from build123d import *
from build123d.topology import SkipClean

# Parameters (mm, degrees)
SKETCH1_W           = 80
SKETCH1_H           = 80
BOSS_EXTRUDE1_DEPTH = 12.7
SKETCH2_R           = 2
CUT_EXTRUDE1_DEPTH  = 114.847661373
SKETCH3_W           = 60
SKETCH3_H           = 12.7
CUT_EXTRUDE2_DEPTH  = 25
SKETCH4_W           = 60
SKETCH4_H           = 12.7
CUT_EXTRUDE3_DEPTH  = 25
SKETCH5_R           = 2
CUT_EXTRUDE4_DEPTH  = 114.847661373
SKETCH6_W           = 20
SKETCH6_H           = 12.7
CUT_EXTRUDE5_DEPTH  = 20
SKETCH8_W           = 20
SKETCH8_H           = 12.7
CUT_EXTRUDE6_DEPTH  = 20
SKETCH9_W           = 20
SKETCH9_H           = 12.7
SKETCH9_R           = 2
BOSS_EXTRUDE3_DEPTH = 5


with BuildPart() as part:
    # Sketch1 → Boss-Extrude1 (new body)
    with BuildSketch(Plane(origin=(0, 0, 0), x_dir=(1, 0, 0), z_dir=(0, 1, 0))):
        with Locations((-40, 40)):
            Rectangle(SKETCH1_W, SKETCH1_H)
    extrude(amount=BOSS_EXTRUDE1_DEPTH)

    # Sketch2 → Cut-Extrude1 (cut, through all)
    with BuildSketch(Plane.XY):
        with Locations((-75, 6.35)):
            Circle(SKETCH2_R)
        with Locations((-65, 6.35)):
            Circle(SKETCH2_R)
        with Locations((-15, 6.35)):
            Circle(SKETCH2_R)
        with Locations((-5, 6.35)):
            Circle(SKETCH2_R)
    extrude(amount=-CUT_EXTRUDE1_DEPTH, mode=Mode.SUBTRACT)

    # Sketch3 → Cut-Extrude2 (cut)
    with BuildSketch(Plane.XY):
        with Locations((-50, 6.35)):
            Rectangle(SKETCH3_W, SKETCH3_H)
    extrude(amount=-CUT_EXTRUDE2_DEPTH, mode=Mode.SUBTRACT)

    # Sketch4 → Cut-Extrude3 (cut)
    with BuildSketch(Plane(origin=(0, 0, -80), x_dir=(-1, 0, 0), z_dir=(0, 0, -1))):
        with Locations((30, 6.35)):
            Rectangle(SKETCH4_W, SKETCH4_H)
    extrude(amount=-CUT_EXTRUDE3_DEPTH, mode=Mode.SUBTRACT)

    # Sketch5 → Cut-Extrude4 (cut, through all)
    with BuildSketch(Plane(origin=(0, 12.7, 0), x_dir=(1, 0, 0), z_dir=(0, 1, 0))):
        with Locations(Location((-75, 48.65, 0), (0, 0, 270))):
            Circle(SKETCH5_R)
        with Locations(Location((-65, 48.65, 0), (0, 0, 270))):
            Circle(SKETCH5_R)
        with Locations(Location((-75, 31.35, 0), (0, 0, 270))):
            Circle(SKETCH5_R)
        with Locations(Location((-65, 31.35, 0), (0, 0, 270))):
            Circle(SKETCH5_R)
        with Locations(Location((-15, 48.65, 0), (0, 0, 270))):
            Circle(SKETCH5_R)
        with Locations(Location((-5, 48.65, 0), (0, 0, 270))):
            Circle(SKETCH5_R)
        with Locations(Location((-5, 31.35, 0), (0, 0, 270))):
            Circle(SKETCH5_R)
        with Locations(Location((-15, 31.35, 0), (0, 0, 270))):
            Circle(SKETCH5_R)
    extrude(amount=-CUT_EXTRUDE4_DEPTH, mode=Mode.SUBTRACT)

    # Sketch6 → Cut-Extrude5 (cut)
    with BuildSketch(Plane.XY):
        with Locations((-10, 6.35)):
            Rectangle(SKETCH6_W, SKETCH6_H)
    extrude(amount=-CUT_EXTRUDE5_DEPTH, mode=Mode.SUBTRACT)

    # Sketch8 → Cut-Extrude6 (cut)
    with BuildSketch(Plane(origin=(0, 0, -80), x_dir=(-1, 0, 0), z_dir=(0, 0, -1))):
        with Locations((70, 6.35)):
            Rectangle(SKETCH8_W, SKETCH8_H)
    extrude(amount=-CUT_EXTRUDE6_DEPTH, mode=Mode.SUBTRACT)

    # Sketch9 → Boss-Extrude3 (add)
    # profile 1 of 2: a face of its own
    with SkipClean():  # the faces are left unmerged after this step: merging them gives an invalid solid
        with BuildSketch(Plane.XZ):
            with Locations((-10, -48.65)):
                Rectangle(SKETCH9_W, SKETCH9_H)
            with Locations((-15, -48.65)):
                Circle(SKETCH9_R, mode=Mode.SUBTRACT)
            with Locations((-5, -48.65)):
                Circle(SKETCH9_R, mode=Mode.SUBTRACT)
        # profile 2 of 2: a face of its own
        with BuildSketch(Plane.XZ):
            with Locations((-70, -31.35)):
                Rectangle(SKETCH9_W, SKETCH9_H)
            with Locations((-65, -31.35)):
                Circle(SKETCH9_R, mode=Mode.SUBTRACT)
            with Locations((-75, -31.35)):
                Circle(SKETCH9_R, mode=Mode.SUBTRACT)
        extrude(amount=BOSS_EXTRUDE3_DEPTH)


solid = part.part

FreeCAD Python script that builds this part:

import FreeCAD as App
import Part
import Sketcher
from FreeCAD import Vector


def add_polygon(sketch, points):
    """Adds a closed chain of lines whose ends are joined by coincident constraints."""
    first, n = sketch.GeometryCount, len(points)
    for a, b in zip(points, points[1:] + points[:1]):
        sketch.addGeometry(Part.LineSegment(App.Vector(*a, 0), App.Vector(*b, 0)), False)
    for i in range(n):
        sketch.addConstraint(Sketcher.Constraint("Coincident", first + i, 2, first + (i + 1) % n, 1))

doc = App.newDocument("Part")
params = doc.addObject("Spreadsheet::Sheet", "Params")
for row, (alias, value) in enumerate([
    ("sketch1_width", "80 mm"),
    ("pad1_length", "12.7 mm"),
    ("sketch2_diameter", "4 mm"),
    ("sketch3_width", "60 mm"),
    ("sketch3_height", "12.7 mm"),
    ("pocket2_length", "25 mm"),
    ("sketch4_width", "60 mm"),
    ("sketch4_height", "12.7 mm"),
    ("pocket3_length", "25 mm"),
    ("sketch5_diameter", "4 mm"),
    ("sketch6_width", "20 mm"),
    ("sketch6_height", "12.7 mm"),
    ("pocket5_length", "20 mm"),
    ("sketch7_width", "20 mm"),
    ("sketch7_height", "12.7 mm"),
    ("pocket6_length", "20 mm"),
    ("sketch8_diameter", "4 mm"),
    ("sketch8_width", "20 mm"),
    ("sketch8_height", "12.7 mm"),
    ("pad2_length", "5 mm"),
], start=1):
    params.set(f"A{row}", alias)
    params.set(f"B{row}", "=" + value)
    params.setAlias(f"B{row}", alias)

body = doc.addObject("PartDesign::Body", "Body")

# Sketch on XZ plane
sketch1 = body.newObject("Sketcher::SketchObject", "Sketch")
sketch1.AttachmentSupport = (doc.getObject("XZ_Plane"), [""])
sketch1.MapMode = "FlatFace"
add_polygon(sketch1, [(-80, -80), (-80, 0), (0, 0), (0, -80)])  # lines 0-3
sketch1.addConstraint([
    Sketcher.Constraint("Vertical", 0),
    Sketcher.Constraint("Horizontal", 1),
    Sketcher.Constraint("Vertical", 2),
    Sketcher.Constraint("Horizontal", 3),
    Sketcher.Constraint("Coincident", 1, 2, -1, 1),
    Sketcher.Constraint("Equal", 3, 0),
    Sketcher.Constraint("DistanceX", 1, 1, 1, 2, 80.0),
])
sketch1.setExpression("Constraints[10]", "Params.sketch1_width")
pad1 = body.newObject("PartDesign::Pad", "Pad")
pad1.Profile = sketch1
pad1.setExpression("Length", "Params.pad1_length")
pad1.Reversed = True

# Sketch on XY plane
sketch2 = body.newObject("Sketcher::SketchObject", "Sketch001")
sketch2.AttachmentSupport = (doc.getObject("XY_Plane"), [""])
sketch2.MapMode = "FlatFace"
sketch2.addGeometry([
    Part.Circle(Vector(-75, 6.3, 0), Vector(0, 0, 1), 2),
    Part.Circle(Vector(-65, 6.3, 0), Vector(0, 0, 1), 2),
    Part.Circle(Vector(-15, 6.3, 0), Vector(0, 0, 1), 2),
    Part.Circle(Vector(-5, 6.3, 0), Vector(0, 0, 1), 2),
], False)
sketch2.addConstraint([
    Sketcher.Constraint("Equal", 0, 1),
    Sketcher.Constraint("Equal", 1, 2),
    Sketcher.Constraint("Equal", 2, 3),
    Sketcher.Constraint("Horizontal", 0, 3, 1, 3),
    Sketcher.Constraint("Horizontal", 1, 3, 2, 3),
    Sketcher.Constraint("Horizontal", 2, 3, 3, 3),
    Sketcher.Constraint("Diameter", 0, 4.0),
    Sketcher.Constraint("DistanceX", 0, 3, -1, 1, 75.0),
    Sketcher.Constraint("DistanceX", 1, 3, -1, 1, 65.0),
    Sketcher.Constraint("DistanceX", 2, 3, -1, 1, 15.0),
    Sketcher.Constraint("DistanceX", 3, 3, -1, 1, 5.0),
    Sketcher.Constraint("DistanceY", -1, 1, 0, 3, 6.35),
])
sketch2.setExpression("Constraints[6]", "Params.sketch2_diameter")
pocket1 = body.newObject("PartDesign::Pocket", "Pocket")
pocket1.Profile = sketch2
pocket1.Type = "ThroughAll"

# Sketch on XY plane
sketch3 = body.newObject("Sketcher::SketchObject", "Sketch002")
sketch3.AttachmentSupport = (doc.getObject("XY_Plane"), [""])
sketch3.MapMode = "FlatFace"
add_polygon(sketch3, [(-80, 13), (-80, 0), (-20, 0), (-20, 13)])  # lines 0-3
sketch3.addConstraint([
    Sketcher.Constraint("Vertical", 0),
    Sketcher.Constraint("Horizontal", 1),
    Sketcher.Constraint("Vertical", 2),
    Sketcher.Constraint("Horizontal", 3),
    Sketcher.Constraint("PointOnObject", 0, 2, -1),
    Sketcher.Constraint("DistanceX", 1, 1, 1, 2, 60.0),
    Sketcher.Constraint("DistanceY", 0, 2, 0, 1, 12.7),
    Sketcher.Constraint("DistanceX", 0, 2, -1, 1, 80.0),
])
sketch3.setExpression("Constraints[9]", "Params.sketch3_width")
sketch3.setExpression("Constraints[10]", "Params.sketch3_height")
pocket2 = body.newObject("PartDesign::Pocket", "Pocket001")
pocket2.Profile = sketch3
pocket2.setExpression("Length", "Params.pocket2_length")

# Sketch on XY plane
sketch4 = body.newObject("Sketcher::SketchObject", "Sketch003")
sketch4.AttachmentSupport = (doc.getObject("XY_Plane"), [""])
sketch4.MapMode = "FlatFace"
sketch4.AttachmentOffset = App.Placement(Vector(0, 0, -80), App.Rotation())
add_polygon(sketch4, [(0, 13), (0, 0), (-60, 0), (-60, 13)])  # lines 0-3
sketch4.addConstraint([
    Sketcher.Constraint("Vertical", 0),
    Sketcher.Constraint("Horizontal", 1),
    Sketcher.Constraint("Vertical", 2),
    Sketcher.Constraint("Horizontal", 3),
    Sketcher.Constraint("Coincident", 0, 2, -1, 1),
    Sketcher.Constraint("DistanceX", 1, 2, 1, 1, 60.0),
    Sketcher.Constraint("DistanceY", 0, 2, 0, 1, 12.7),
])
sketch4.setExpression("Constraints[9]", "Params.sketch4_width")
sketch4.setExpression("Constraints[10]", "Params.sketch4_height")
pocket3 = body.newObject("PartDesign::Pocket", "Pocket002")
pocket3.Profile = sketch4
pocket3.setExpression("Length", "Params.pocket3_length")
pocket3.Reversed = True

# Sketch on XZ plane
sketch5 = body.newObject("Sketcher::SketchObject", "Sketch004")
sketch5.AttachmentSupport = (doc.getObject("XZ_Plane"), [""])
sketch5.MapMode = "FlatFace"
sketch5.AttachmentOffset = App.Placement(Vector(0, 0, -12.7), App.Rotation())
sketch5.addGeometry([
    Part.Circle(Vector(-75, -48.6, 0), Vector(0, 0, 1), 2),  # 0
    Part.Circle(Vector(-65, -48.6, 0), Vector(0, 0, 1), 2),  # 1
    Part.Circle(Vector(-75, -31.4, 0), Vector(0, 0, 1), 2),  # 2
    Part.Circle(Vector(-65, -31.4, 0), Vector(0, 0, 1), 2),  # 3
    Part.Circle(Vector(-15, -48.6, 0), Vector(0, 0, 1), 2),  # 4
    Part.Circle(Vector(-5, -48.6, 0), Vector(0, 0, 1), 2),  # 5
    Part.Circle(Vector(-5, -31.4, 0), Vector(0, 0, 1), 2),  # 6
    Part.Circle(Vector(-15, -31.4, 0), Vector(0, 0, 1), 2),  # 7
], False)
sketch5.addConstraint([
    Sketcher.Constraint("Equal", 0, 1),
    Sketcher.Constraint("Equal", 1, 2),
    Sketcher.Constraint("Equal", 2, 3),
    Sketcher.Constraint("Equal", 3, 4),
    Sketcher.Constraint("Equal", 4, 5),
    Sketcher.Constraint("Equal", 5, 6),
    Sketcher.Constraint("Equal", 6, 7),
    Sketcher.Constraint("Horizontal", 0, 3, 1, 3),
    Sketcher.Constraint("Horizontal", 2, 3, 3, 3),
    Sketcher.Constraint("Horizontal", 1, 3, 4, 3),
    Sketcher.Constraint("Horizontal", 4, 3, 5, 3),
    Sketcher.Constraint("Horizontal", 3, 3, 6, 3),
    Sketcher.Constraint("Horizontal", 6, 3, 7, 3),
    Sketcher.Constraint("Vertical", 0, 3, 2, 3),
    Sketcher.Constraint("Vertical", 1, 3, 3, 3),
    Sketcher.Constraint("Vertical", 5, 3, 6, 3),
    Sketcher.Constraint("Vertical", 4, 3, 7, 3),
    Sketcher.Constraint("Diameter", 0, 4.0),
    Sketcher.Constraint("DistanceX", 0, 3, -1, 1, 75.0),
    Sketcher.Constraint("DistanceX", 1, 3, -1, 1, 65.0),
    Sketcher.Constraint("DistanceX", 4, 3, -1, 1, 15.0),
    Sketcher.Constraint("DistanceX", 5, 3, -1, 1, 5.0),
    Sketcher.Constraint("DistanceY", 0, 3, 2, 3, 17.3),
    Sketcher.Constraint("DistanceY", 0, 3, -1, 1, 48.65),
])
sketch5.setExpression("Constraints[17]", "Params.sketch5_diameter")
pocket4 = body.newObject("PartDesign::Pocket", "Pocket003")
pocket4.Profile = sketch5
pocket4.Type = "ThroughAll"
pocket4.Reversed = True

# Sketch on XY plane
sketch6 = body.newObject("Sketcher::SketchObject", "Sketch005")
sketch6.AttachmentSupport = (doc.getObject("XY_Plane"), [""])
sketch6.MapMode = "FlatFace"
add_polygon(sketch6, [(-20, 13), (-20, 0), (0, 0), (0, 13)])  # lines 0-3
sketch6.addConstraint([
    Sketcher.Constraint("Vertical", 0),
    Sketcher.Constraint("Horizontal", 1),
    Sketcher.Constraint("Vertical", 2),
    Sketcher.Constraint("Horizontal", 3),
    Sketcher.Constraint("Coincident", 1, 2, -1, 1),
    Sketcher.Constraint("DistanceX", 1, 1, 1, 2, 20.0),
    Sketcher.Constraint("DistanceY", 0, 2, 0, 1, 12.7),
])
sketch6.setExpression("Constraints[9]", "Params.sketch6_width")
sketch6.setExpression("Constraints[10]", "Params.sketch6_height")
pocket5 = body.newObject("PartDesign::Pocket", "Pocket004")
pocket5.Profile = sketch6
pocket5.setExpression("Length", "Params.pocket5_length")

# Sketch on XY plane
sketch7 = body.newObject("Sketcher::SketchObject", "Sketch006")
sketch7.AttachmentSupport = (doc.getObject("XY_Plane"), [""])
sketch7.MapMode = "FlatFace"
sketch7.AttachmentOffset = App.Placement(Vector(0, 0, -80), App.Rotation())
add_polygon(sketch7, [(-60, 13), (-60, 0), (-80, 0), (-80, 13)])  # lines 0-3
sketch7.addConstraint([
    Sketcher.Constraint("Vertical", 0),
    Sketcher.Constraint("Horizontal", 1),
    Sketcher.Constraint("Vertical", 2),
    Sketcher.Constraint("Horizontal", 3),
    Sketcher.Constraint("PointOnObject", 0, 2, -1),
    Sketcher.Constraint("DistanceX", 1, 2, 1, 1, 20.0),
    Sketcher.Constraint("DistanceY", 0, 2, 0, 1, 12.7),
    Sketcher.Constraint("DistanceX", 0, 2, -1, 1, 60.0),
])
sketch7.setExpression("Constraints[9]", "Params.sketch7_width")
sketch7.setExpression("Constraints[10]", "Params.sketch7_height")
pocket6 = body.newObject("PartDesign::Pocket", "Pocket005")
pocket6.Profile = sketch7
pocket6.setExpression("Length", "Params.pocket6_length")
pocket6.Reversed = True

# Sketch on XZ plane
sketch8 = body.newObject("Sketcher::SketchObject", "Sketch007")
sketch8.AttachmentSupport = (doc.getObject("XZ_Plane"), [""])
sketch8.MapMode = "FlatFace"
add_polygon(sketch8, [(-20, -42.3), (-20, -55), (0, -55), (0, -42.3)])  # lines 0-3
sketch8.addGeometry(Part.Circle(Vector(-15, -48.6, 0), Vector(0, 0, 1), 2), False)  # 4
sketch8.addGeometry(Part.Circle(Vector(-5, -48.6, 0), Vector(0, 0, 1), 2), False)  # 5
add_polygon(sketch8, [(-80, -25), (-80, -37.7), (-60, -37.7), (-60, -25)])  # lines 6-9
sketch8.addGeometry(Part.Circle(Vector(-75, -31.4, 0), Vector(0, 0, 1), 2), False)  # 10
sketch8.addGeometry(Part.Circle(Vector(-65, -31.4, 0), Vector(0, 0, 1), 2), False)  # 11
sketch8.addConstraint([
    Sketcher.Constraint("Vertical", 0),
    Sketcher.Constraint("Horizontal", 1),
    Sketcher.Constraint("Vertical", 2),
    Sketcher.Constraint("Horizontal", 3),
    Sketcher.Constraint("Vertical", 6),
    Sketcher.Constraint("Horizontal", 7),
    Sketcher.Constraint("Vertical", 8),
    Sketcher.Constraint("Horizontal", 9),
    Sketcher.Constraint("Equal", 4, 5),
    Sketcher.Constraint("Equal", 5, 10),
    Sketcher.Constraint("Equal", 10, 11),
    Sketcher.Constraint("PointOnObject", 1, 2, -2),
    Sketcher.Constraint("Horizontal", 4, 3, 5, 3),
    Sketcher.Constraint("Horizontal", 10, 3, 11, 3),
    Sketcher.Constraint("Equal", 3, 7),
    Sketcher.Constraint("Equal", 2, 6),
    Sketcher.Constraint("Diameter", 4, 4.0),
    Sketcher.Constraint("DistanceX", 1, 1, 1, 2, 20.0),
    Sketcher.Constraint("DistanceY", 0, 2, 0, 1, 12.7),
    Sketcher.Constraint("DistanceX", 4, 3, -1, 1, 15.0),
    Sketcher.Constraint("DistanceX", 5, 3, -1, 1, 5.0),
    Sketcher.Constraint("DistanceX", 10, 3, -1, 1, 75.0),
    Sketcher.Constraint("DistanceX", 11, 3, -1, 1, 65.0),
    Sketcher.Constraint("DistanceY", 0, 2, -1, 1, 55.0),
    Sketcher.Constraint("DistanceX", 6, 2, -1, 1, 80.0),
    Sketcher.Constraint("DistanceY", 8, 2, -1, 1, 25.0),
    Sketcher.Constraint("DistanceY", 4, 3, 10, 3, 17.3),
    Sketcher.Constraint("DistanceY", 4, 3, -1, 1, 48.65),
])
sketch8.setExpression("Constraints[24]", "Params.sketch8_diameter")
sketch8.setExpression("Constraints[25]", "Params.sketch8_width")
sketch8.setExpression("Constraints[26]", "Params.sketch8_height")
pad2 = body.newObject("PartDesign::Pad", "Pad001")
pad2.Profile = sketch8
pad2.setExpression("Length", "Params.pad2_length")

doc.recompute()
